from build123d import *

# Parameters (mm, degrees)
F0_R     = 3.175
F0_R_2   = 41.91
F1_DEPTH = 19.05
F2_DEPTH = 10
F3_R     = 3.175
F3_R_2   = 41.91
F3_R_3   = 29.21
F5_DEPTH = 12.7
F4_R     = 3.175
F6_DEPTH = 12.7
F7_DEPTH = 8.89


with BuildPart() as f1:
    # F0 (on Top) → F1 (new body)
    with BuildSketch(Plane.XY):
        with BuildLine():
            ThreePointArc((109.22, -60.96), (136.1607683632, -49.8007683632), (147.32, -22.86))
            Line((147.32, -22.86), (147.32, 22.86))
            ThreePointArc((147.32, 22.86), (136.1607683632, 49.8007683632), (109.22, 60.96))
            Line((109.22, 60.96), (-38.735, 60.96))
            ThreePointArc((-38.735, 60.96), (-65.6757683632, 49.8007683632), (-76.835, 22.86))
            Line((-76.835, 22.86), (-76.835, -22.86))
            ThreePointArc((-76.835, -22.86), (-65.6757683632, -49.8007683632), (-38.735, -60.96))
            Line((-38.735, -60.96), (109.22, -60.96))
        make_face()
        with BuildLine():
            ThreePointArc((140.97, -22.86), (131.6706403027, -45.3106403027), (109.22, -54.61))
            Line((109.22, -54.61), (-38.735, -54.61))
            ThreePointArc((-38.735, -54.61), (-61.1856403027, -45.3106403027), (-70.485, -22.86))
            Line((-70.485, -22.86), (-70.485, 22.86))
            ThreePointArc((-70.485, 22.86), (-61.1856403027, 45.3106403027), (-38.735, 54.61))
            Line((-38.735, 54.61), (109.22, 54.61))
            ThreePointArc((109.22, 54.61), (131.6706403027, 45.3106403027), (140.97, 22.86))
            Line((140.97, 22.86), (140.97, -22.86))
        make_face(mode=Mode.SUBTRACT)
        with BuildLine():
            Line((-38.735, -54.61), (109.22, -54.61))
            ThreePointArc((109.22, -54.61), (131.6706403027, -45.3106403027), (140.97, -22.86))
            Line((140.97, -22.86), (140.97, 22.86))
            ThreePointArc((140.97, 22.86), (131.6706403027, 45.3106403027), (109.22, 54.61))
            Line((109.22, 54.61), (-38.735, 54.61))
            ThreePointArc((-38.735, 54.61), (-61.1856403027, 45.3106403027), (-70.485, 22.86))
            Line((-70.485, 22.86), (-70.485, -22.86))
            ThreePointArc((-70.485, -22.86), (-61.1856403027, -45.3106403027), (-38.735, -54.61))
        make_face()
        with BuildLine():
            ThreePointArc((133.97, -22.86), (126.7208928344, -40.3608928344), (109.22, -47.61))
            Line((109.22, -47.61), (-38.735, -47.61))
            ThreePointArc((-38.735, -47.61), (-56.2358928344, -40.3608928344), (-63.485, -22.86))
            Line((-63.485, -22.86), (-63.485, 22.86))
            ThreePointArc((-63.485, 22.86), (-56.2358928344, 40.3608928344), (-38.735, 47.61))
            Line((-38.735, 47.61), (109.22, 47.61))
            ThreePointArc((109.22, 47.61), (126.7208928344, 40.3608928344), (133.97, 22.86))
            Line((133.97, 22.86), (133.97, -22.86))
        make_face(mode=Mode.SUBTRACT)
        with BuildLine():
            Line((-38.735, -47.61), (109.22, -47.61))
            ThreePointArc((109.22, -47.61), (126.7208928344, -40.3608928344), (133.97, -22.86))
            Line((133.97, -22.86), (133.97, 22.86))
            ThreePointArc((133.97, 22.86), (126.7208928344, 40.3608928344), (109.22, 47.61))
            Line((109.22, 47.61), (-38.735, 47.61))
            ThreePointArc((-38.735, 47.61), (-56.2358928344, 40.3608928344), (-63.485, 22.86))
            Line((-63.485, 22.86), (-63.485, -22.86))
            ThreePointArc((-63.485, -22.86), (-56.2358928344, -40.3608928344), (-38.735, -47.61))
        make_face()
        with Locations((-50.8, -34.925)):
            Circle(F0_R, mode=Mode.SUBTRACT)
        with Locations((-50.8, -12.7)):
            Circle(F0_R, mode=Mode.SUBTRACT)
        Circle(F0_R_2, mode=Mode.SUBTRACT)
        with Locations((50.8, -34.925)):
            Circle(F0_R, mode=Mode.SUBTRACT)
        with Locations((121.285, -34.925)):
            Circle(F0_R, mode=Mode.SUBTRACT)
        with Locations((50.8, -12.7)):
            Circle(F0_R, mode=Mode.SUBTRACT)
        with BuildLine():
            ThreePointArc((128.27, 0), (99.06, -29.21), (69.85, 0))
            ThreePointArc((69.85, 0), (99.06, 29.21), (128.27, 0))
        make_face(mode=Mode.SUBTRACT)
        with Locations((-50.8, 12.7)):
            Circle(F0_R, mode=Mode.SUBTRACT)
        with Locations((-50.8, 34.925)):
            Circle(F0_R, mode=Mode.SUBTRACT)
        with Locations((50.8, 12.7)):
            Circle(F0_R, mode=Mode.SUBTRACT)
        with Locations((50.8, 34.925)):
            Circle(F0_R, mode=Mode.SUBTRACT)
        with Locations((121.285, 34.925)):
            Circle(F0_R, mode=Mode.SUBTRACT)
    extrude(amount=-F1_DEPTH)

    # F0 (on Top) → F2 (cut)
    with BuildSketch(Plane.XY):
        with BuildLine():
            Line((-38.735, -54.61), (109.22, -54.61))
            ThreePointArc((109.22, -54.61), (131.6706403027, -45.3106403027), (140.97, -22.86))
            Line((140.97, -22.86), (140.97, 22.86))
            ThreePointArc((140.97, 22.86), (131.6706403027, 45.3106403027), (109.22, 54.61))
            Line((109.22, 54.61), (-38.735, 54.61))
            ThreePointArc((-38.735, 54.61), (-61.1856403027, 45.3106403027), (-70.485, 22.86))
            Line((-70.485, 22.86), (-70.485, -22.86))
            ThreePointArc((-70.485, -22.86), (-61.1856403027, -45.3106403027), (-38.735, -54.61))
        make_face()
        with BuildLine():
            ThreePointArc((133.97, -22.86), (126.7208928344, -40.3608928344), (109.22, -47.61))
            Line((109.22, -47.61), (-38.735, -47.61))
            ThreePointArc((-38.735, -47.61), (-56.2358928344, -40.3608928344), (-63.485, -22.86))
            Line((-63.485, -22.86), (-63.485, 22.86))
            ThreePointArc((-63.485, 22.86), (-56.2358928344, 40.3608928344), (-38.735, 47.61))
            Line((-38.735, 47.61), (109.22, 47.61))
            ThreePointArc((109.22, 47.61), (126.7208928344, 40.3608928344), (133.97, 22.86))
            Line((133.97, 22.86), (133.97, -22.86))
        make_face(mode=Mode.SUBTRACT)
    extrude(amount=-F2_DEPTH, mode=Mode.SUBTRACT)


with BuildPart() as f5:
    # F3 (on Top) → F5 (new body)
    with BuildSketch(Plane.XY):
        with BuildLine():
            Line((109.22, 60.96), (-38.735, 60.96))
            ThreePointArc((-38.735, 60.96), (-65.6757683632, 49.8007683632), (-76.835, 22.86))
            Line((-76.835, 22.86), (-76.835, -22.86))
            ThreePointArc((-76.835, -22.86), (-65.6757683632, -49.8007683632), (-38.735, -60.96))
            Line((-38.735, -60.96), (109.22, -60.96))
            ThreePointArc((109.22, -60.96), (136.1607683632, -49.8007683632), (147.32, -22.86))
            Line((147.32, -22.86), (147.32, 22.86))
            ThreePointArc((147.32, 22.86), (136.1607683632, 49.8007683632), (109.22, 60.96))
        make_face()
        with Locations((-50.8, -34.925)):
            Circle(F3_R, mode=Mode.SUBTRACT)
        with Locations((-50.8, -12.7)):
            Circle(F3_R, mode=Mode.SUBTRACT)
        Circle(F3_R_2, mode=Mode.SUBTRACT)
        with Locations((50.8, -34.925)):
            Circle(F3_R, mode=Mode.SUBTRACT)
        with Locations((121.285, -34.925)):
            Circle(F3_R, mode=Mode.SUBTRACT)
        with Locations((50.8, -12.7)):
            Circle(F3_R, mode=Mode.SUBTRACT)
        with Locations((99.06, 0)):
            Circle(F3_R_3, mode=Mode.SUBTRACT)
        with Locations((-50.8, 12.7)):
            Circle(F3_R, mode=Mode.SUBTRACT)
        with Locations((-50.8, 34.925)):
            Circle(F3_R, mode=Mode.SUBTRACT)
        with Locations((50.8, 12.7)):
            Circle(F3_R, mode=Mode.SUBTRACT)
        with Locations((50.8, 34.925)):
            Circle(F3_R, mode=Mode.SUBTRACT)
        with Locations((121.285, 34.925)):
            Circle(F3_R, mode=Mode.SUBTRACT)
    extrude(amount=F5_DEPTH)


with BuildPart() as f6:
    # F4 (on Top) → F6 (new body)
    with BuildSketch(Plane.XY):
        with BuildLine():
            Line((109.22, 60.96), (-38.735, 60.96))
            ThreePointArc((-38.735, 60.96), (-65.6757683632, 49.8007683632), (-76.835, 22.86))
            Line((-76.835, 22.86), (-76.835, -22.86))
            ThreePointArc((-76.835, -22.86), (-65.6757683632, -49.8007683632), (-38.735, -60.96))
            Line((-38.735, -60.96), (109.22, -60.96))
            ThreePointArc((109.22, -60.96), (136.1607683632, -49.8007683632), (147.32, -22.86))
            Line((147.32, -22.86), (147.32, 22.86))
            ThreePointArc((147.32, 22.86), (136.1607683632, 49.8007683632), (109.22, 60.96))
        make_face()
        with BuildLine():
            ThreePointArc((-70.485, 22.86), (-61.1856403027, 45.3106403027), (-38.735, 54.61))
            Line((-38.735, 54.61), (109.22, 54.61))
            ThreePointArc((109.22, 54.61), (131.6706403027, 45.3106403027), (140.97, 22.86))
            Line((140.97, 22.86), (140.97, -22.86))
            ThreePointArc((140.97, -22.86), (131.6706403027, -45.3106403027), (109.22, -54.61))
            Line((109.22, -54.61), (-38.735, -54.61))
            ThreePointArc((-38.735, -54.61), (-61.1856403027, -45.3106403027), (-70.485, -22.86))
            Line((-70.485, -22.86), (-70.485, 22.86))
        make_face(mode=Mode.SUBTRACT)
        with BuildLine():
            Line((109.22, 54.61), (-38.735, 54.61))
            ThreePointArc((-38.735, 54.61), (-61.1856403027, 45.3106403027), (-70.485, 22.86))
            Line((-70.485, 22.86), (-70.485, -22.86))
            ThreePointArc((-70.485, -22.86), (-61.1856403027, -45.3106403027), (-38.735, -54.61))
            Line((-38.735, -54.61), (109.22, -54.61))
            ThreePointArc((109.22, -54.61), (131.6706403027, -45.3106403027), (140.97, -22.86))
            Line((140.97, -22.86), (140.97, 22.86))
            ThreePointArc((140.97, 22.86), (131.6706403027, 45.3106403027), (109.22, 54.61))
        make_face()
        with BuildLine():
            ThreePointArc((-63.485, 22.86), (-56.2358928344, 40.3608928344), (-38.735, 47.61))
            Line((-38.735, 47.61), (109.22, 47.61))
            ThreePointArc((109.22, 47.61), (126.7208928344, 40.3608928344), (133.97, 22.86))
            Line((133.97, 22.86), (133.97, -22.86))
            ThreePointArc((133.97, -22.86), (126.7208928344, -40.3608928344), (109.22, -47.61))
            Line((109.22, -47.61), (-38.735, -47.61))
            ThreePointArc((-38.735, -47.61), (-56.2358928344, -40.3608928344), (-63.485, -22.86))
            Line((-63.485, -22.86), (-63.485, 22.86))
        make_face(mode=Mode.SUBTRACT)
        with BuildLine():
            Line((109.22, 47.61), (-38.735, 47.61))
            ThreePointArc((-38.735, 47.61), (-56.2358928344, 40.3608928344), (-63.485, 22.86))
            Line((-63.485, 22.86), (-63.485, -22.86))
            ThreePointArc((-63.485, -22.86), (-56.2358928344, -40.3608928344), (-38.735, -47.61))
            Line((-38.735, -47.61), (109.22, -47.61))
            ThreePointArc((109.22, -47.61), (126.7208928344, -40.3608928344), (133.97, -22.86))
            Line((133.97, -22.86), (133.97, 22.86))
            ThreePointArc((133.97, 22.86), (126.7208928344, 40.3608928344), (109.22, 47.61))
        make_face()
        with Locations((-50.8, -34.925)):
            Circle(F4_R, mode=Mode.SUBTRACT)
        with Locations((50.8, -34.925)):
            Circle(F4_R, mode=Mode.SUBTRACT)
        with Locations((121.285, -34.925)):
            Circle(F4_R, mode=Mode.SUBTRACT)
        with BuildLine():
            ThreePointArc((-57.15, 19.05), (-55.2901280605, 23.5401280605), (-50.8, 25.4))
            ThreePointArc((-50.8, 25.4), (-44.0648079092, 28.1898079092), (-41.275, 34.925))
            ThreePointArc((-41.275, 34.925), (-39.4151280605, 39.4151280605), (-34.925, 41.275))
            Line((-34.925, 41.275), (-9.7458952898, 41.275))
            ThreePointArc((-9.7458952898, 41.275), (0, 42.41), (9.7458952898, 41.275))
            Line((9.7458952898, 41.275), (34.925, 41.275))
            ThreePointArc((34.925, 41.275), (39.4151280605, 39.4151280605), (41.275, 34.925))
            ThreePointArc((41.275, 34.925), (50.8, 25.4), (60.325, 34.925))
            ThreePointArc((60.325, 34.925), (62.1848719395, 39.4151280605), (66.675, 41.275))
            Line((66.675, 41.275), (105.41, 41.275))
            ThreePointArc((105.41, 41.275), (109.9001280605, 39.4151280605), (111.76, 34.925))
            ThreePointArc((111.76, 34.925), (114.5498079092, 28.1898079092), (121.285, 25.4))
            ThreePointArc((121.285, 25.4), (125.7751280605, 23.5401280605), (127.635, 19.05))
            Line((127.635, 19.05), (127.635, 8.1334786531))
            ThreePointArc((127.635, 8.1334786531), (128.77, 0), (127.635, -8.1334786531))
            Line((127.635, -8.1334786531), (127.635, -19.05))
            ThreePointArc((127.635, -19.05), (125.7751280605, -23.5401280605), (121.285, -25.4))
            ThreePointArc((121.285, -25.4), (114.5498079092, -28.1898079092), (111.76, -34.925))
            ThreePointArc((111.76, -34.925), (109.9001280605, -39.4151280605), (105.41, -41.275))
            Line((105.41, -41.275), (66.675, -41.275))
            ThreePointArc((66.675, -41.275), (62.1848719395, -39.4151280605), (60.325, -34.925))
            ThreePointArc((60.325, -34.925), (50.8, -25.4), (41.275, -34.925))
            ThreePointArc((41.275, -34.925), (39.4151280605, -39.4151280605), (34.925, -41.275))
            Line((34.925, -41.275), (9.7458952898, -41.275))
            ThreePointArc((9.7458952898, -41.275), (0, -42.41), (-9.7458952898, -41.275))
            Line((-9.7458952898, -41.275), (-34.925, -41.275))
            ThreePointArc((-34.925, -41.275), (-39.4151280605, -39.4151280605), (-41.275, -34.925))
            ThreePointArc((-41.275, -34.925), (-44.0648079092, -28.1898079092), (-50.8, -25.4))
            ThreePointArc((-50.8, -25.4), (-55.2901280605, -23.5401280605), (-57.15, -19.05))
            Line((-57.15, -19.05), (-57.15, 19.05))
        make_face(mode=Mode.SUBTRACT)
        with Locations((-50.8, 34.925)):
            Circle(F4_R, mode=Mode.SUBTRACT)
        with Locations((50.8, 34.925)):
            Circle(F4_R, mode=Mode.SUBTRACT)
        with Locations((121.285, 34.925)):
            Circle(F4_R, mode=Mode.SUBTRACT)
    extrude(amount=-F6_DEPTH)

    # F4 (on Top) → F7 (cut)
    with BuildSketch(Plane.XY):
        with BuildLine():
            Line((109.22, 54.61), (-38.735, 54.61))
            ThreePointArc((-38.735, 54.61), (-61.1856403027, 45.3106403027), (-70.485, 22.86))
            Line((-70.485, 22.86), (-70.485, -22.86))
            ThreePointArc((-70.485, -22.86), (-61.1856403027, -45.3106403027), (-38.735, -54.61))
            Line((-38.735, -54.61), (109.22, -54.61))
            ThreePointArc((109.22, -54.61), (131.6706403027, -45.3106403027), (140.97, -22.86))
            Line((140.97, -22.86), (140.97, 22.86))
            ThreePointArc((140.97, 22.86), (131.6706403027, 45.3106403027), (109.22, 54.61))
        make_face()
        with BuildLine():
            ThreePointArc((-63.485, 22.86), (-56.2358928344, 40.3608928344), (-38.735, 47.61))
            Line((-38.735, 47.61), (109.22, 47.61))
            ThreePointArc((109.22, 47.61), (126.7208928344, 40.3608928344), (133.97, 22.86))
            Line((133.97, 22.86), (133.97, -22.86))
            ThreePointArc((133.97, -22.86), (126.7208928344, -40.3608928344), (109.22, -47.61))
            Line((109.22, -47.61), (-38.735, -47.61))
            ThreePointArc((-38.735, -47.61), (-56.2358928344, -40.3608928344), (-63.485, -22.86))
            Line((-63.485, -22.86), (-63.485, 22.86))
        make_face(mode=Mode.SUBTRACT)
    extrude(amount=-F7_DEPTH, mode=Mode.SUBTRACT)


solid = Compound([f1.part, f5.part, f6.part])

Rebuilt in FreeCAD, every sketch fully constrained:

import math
import FreeCAD as App
import Part
import Sketcher
from FreeCAD import Vector
Q = App.Units.Quantity

doc = App.newDocument("Part")
body = doc.addObject("PartDesign::Body", "Body")

# Sketch on XY plane
sketch1 = body.newObject("Sketcher::SketchObject", "Sketch")
sketch1.AttachmentSupport = (doc.getObject("XY_Plane"), [""])
sketch1.MapMode = "FlatFace"
sketch1.addGeometry(Part.ArcOfCircle(Part.Circle(Vector(109.22, -22.86, 0), Vector(0, 0, 1), 38.1), math.radians(-90), math.radians(0)), False)
sketch1.addGeometry(Part.LineSegment(Vector(147.32, -22.86, 0), Vector(147.32, 22.86, 0)), False)
sketch1.addGeometry(Part.ArcOfCircle(Part.Circle(Vector(109.22, 22.86, 0), Vector(0, 0, 1), 38.1), math.radians(0), math.radians(90)), False)
sketch1.addGeometry(Part.LineSegment(Vector(109.22, 60.96, 0), Vector(-38.735, 60.96, 0)), False)
sketch1.addGeometry(Part.ArcOfCircle(Part.Circle(Vector(-38.735, 22.86, 0), Vector(0, 0, 1), 38.1), math.radians(90), math.radians(180)), False)
sketch1.addGeometry(Part.LineSegment(Vector(-76.835, 22.86, 0), Vector(-76.835, -22.86, 0)), False)
sketch1.addGeometry(Part.ArcOfCircle(Part.Circle(Vector(-38.735, -22.86, 0), Vector(0, 0, 1), 38.1), math.radians(180), math.radians(270)), False)
sketch1.addGeometry(Part.LineSegment(Vector(-38.735, -60.96, 0), Vector(109.22, -60.96, 0)), False)
sketch1.addGeometry(Part.Circle(Vector(-50.8, -34.925, 0), Vector(0, 0, 1), 3.175), False)
sketch1.addGeometry(Part.Circle(Vector(-50.8, -12.7, 0), Vector(0, 0, 1), 3.175), False)
sketch1.addGeometry(Part.Circle(Vector(50.8, -34.925, 0), Vector(0, 0, 1), 3.175), False)
sketch1.addGeometry(Part.Circle(Vector(121.285, -34.925, 0), Vector(0, 0, 1), 3.175), False)
sketch1.addGeometry(Part.Circle(Vector(50.8, -12.7, 0), Vector(0, 0, 1), 3.175), False)
sketch1.addGeometry(Part.Circle(Vector(99.06, 0, 0), Vector(0, 0, 1), 29.21), False)
sketch1.addGeometry(Part.Circle(Vector(-50.8, 12.7, 0), Vector(0, 0, 1), 3.175), False)
sketch1.addGeometry(Part.Circle(Vector(0, 0, 0), Vector(0, 0, 1), 41.91), False)
sketch1.addGeometry(Part.Circle(Vector(-50.8, 34.925, 0), Vector(0, 0, 1), 3.175), False)
sketch1.addGeometry(Part.Circle(Vector(50.8, 12.7, 0), Vector(0, 0, 1), 3.175), False)
sketch1.addGeometry(Part.Circle(Vector(50.8, 34.925, 0), Vector(0, 0, 1), 3.175), False)
sketch1.addGeometry(Part.Circle(Vector(121.285, 34.925, 0), Vector(0, 0, 1), 3.175), False)
sketch1.addConstraint(Sketcher.Constraint("Tangent", 0, 2, 1, 1))
sketch1.addConstraint(Sketcher.Constraint("Tangent", 1, 2, 2, 1))
sketch1.addConstraint(Sketcher.Constraint("Tangent", 2, 2, 3, 1))
sketch1.addConstraint(Sketcher.Constraint("Tangent", 3, 2, 4, 1))
sketch1.addConstraint(Sketcher.Constraint("Tangent", 4, 2, 5, 1))
sketch1.addConstraint(Sketcher.Constraint("Tangent", 5, 2, 6, 1))
sketch1.addConstraint(Sketcher.Constraint("Tangent", 6, 2, 7, 1))
sketch1.addConstraint(Sketcher.Constraint("Tangent", 7, 2, 0, 1))
sketch1.addConstraint(Sketcher.Constraint("Vertical", 1))
sketch1.addConstraint(Sketcher.Constraint("Horizontal", 3))
sketch1.addConstraint(Sketcher.Constraint("Vertical", 5))
sketch1.addConstraint(Sketcher.Constraint("Horizontal", 7))
sketch1.addConstraint(Sketcher.Constraint("Coincident", 15, 3, -1, 1))
sketch1.addConstraint(Sketcher.Constraint("Equal", 0, 2))
sketch1.addConstraint(Sketcher.Constraint("Equal", 2, 4))
sketch1.addConstraint(Sketcher.Constraint("Equal", 4, 6))
sketch1.addConstraint(Sketcher.Constraint("Equal", 8, 9))
sketch1.addConstraint(Sketcher.Constraint("Equal", 9, 10))
sketch1.addConstraint(Sketcher.Constraint("Equal", 10, 11))
sketch1.addConstraint(Sketcher.Constraint("Equal", 11, 12))
sketch1.addConstraint(Sketcher.Constraint("Equal", 12, 14))
sketch1.addConstraint(Sketcher.Constraint("Equal", 14, 16))
sketch1.addConstraint(Sketcher.Constraint("Equal", 16, 17))
sketch1.addConstraint(Sketcher.Constraint("Equal", 17, 18))
sketch1.addConstraint(Sketcher.Constraint("Equal", 18, 19))
sketch1.addConstraint(Sketcher.Constraint("Symmetric", 12, 3, 14, 3, -1, 1))
sketch1.addConstraint(Sketcher.Constraint("Symmetric", 10, 3, 16, 3, -1, 1))
sketch1.addConstraint(Sketcher.Constraint("Symmetric", 9, 3, 17, 3, -1, 1))
sketch1.addConstraint(Sketcher.Constraint("Symmetric", 8, 3, 18, 3, -1, 1))
sketch1.addConstraint(Sketcher.Constraint("Symmetric", 8, 3, 10, 3, -2))
sketch1.addConstraint(Sketcher.Constraint("Symmetric", 9, 3, 12, 3, -2))
sketch1.addConstraint(Sketcher.Constraint("Symmetric", 11, 3, 19, 3, -1))
sketch1.addConstraint(Sketcher.Constraint("PointOnObject", 13, 3, -1))
sketch1.addConstraint(Sketcher.Constraint("Horizontal", 10, 3, 11, 3))
sketch1.addConstraint(Sketcher.Constraint("Vertical", 8, 3, 9, 3))
sketch1.addConstraint(Sketcher.Constraint("Diameter", 13, Q("2.3 in")))
sketch1.addConstraint(Sketcher.Constraint("Diameter", 15, Q("3.3 in")))
sketch1.addConstraint(Sketcher.Constraint("Radius", 0, Q("1.5 in")))
sketch1.addConstraint(Sketcher.Constraint("Diameter", 8, Q("0.25 in")))
sketch1.addConstraint(Sketcher.Constraint("DistanceY", 1, 1, 1, 2, Q("1.8 in")))
sketch1.addConstraint(Sketcher.Constraint("DistanceX", 8, 3, -1, 1, Q("2 in")))
sketch1.addConstraint(Sketcher.Constraint("DistanceY", 9, 3, 14, 3, Q("1 in")))
sketch1.addConstraint(Sketcher.Constraint("DistanceX", -1, 1, 0, 3, Q("4.3 in")))
sketch1.addConstraint(Sketcher.Constraint("DistanceY", 0, 3, -1, 1, Q("0.9 in")))
sketch1.addConstraint(Sketcher.Constraint("DistanceX", -1, 1, 13, 3, Q("3.9 in")))
sketch1.addConstraint(Sketcher.Constraint("DistanceX", 6, 3, 11, 3, Q("6.3 in")))
sketch1.addConstraint(Sketcher.Constraint("DistanceX", 3, 2, 3, 1, Q("5.825 in")))
sketch1.addConstraint(Sketcher.Constraint("DistanceY", 11, 3, 19, 3, Q("2.75 in")))
pad1 = body.newObject("PartDesign::Pad", "Pad")
pad1.Profile = sketch1
pad1.Length = Q("0.75 in")
pad1.Reversed = True

# Sketch on XY plane
sketch2 = body.newObject("Sketcher::SketchObject", "Sketch001")
sketch2.AttachmentSupport = (doc.getObject("XY_Plane"), [""])
sketch2.MapMode = "FlatFace"
sketch2.addGeometry(Part.LineSegment(Vector(-38.735, -54.61, 0), Vector(109.22, -54.61, 0)), False)
sketch2.addGeometry(Part.ArcOfCircle(Part.Circle(Vector(109.22, -22.86, 0), Vector(0, 0, 1), 31.75), math.radians(-90), math.radians(0)), False)
sketch2.addGeometry(Part.LineSegment(Vector(140.97, -22.86, 0), Vector(140.97, 22.86, 0)), False)
sketch2.addGeometry(Part.ArcOfCircle(Part.Circle(Vector(109.22, 22.86, 0), Vector(0, 0, 1), 31.75), math.radians(0), math.radians(90)), False)
sketch2.addGeometry(Part.LineSegment(Vector(109.22, 54.61, 0), Vector(-38.735, 54.61, 0)), False)
sketch2.addGeometry(Part.ArcOfCircle(Part.Circle(Vector(-38.735, 22.86, 0), Vector(0, 0, 1), 31.75), math.radians(90), math.radians(180)), False)
sketch2.addGeometry(Part.LineSegment(Vector(-70.485, 22.86, 0), Vector(-70.485, -22.86, 0)), False)
sketch2.addGeometry(Part.ArcOfCircle(Part.Circle(Vector(-38.735, -22.86, 0), Vector(0, 0, 1), 31.75), math.radians(180), math.radians(270)), False)
sketch2.addGeometry(Part.LineSegment(Vector(133.97, 22.86, 0), Vector(133.97, -22.86, 0)), False)
sketch2.addGeometry(Part.ArcOfCircle(Part.Circle(Vector(109.22, -22.86, 0), Vector(0, 0, 1), 24.75), math.radians(-90), math.radians(0)), False)
sketch2.addGeometry(Part.LineSegment(Vector(109.22, -47.61, 0), Vector(-38.735, -47.61, 0)), False)
sketch2.addGeometry(Part.ArcOfCircle(Part.Circle(Vector(-38.735, -22.86, 0), Vector(0, 0, 1), 24.75), math.radians(180), math.radians(270)), False)
sketch2.addGeometry(Part.LineSegment(Vector(-63.485, -22.86, 0), Vector(-63.485, 22.86, 0)), False)
sketch2.addGeometry(Part.ArcOfCircle(Part.Circle(Vector(-38.735, 22.86, 0), Vector(0, 0, 1), 24.75), math.radians(90), math.radians(180)), False)
sketch2.addGeometry(Part.LineSegment(Vector(-38.735, 47.61, 0), Vector(109.22, 47.61, 0)), False)
sketch2.addGeometry(Part.ArcOfCircle(Part.Circle(Vector(109.22, 22.86, 0), Vector(0, 0, 1), 24.75), math.radians(0), math.radians(90)), False)
sketch2.addConstraint(Sketcher.Constraint("Tangent", 0, 2, 1, 1))
sketch2.addConstraint(Sketcher.Constraint("Tangent", 1, 2, 2, 1))
sketch2.addConstraint(Sketcher.Constraint("Tangent", 2, 2, 3, 1))
sketch2.addConstraint(Sketcher.Constraint("Tangent", 3, 2, 4, 1))
sketch2.addConstraint(Sketcher.Constraint("Tangent", 4, 2, 5, 1))
sketch2.addConstraint(Sketcher.Constraint("Tangent", 5, 2, 6, 1))
sketch2.addConstraint(Sketcher.Constraint("Tangent", 6, 2, 7, 1))
sketch2.addConstraint(Sketcher.Constraint("Tangent", 7, 2, 0, 1))
sketch2.addConstraint(Sketcher.Constraint("Tangent", 8, 2, 9, 2))
sketch2.addConstraint(Sketcher.Constraint("Tangent", 9, 1, 10, 1))
sketch2.addConstraint(Sketcher.Constraint("Tangent", 10, 2, 11, 2))
sketch2.addConstraint(Sketcher.Constraint("Tangent", 11, 1, 12, 1))
sketch2.addConstraint(Sketcher.Constraint("Tangent", 12, 2, 13, 2))
sketch2.addConstraint(Sketcher.Constraint("Tangent", 13, 1, 14, 1))
sketch2.addConstraint(Sketcher.Constraint("Tangent", 14, 2, 15, 2))
sketch2.addConstraint(Sketcher.Constraint("Tangent", 15, 1, 8, 1))
sketch2.addConstraint(Sketcher.Constraint("Horizontal", 0))
sketch2.addConstraint(Sketcher.Constraint("Vertical", 2))
sketch2.addConstraint(Sketcher.Constraint("Horizontal", 4))
sketch2.addConstraint(Sketcher.Constraint("Vertical", 6))
sketch2.addConstraint(Sketcher.Constraint("Vertical", 8))
sketch2.addConstraint(Sketcher.Constraint("Horizontal", 10))
sketch2.addConstraint(Sketcher.Constraint("Vertical", 12))
sketch2.addConstraint(Sketcher.Constraint("Horizontal", 14))
sketch2.addConstraint(Sketcher.Constraint("Coincident", 9, 3, 1, 3))
sketch2.addConstraint(Sketcher.Constraint("Coincident", 11, 3, 7, 3))
sketch2.addConstraint(Sketcher.Constraint("Coincident", 13, 3, 5, 3))
sketch2.addConstraint(Sketcher.Constraint("Equal", 1, 3))
sketch2.addConstraint(Sketcher.Constraint("Equal", 3, 5))
sketch2.addConstraint(Sketcher.Constraint("Equal", 5, 7))
sketch2.addConstraint(Sketcher.Constraint("Equal", 13, 15))
sketch2.addConstraint(Sketcher.Constraint("Radius", 1, Q("1.25 in")))
sketch2.addConstraint(Sketcher.Constraint("DistanceY", 2, 1, 2, 2, Q("1.8 in")))
sketch2.addConstraint(Sketcher.Constraint("DistanceX", -1, 1, 1, 3, Q("4.3 in")))
sketch2.addConstraint(Sketcher.Constraint("DistanceY", 1, 3, -1, 1, Q("0.9 in")))
sketch2.addConstraint(Sketcher.Constraint("DistanceX", 0, 1, 0, 2, Q("5.825 in")))
sketch2.addConstraint(Sketcher.Constraint("Radius", 9, 24.75))
pocket1 = body.newObject("PartDesign::Pocket", "Pocket")
pocket1.Profile = sketch2
pocket1.Length = 10
body2 = doc.addObject("PartDesign::Body", "Body001")

# Sketch on XY plane
sketch3 = body2.newObject("Sketcher::SketchObject", "Sketch002")
sketch3.AttachmentSupport = (doc.getObject("XY_Plane001"), [""])
sketch3.MapMode = "FlatFace"
sketch3.addGeometry(Part.LineSegment(Vector(109.22, 60.96, 0), Vector(-38.735, 60.96, 0)), False)
sketch3.addGeometry(Part.ArcOfCircle(Part.Circle(Vector(-38.735, 22.86, 0), Vector(0, 0, 1), 38.1), math.radians(90), math.radians(180)), False)
sketch3.addGeometry(Part.LineSegment(Vector(-76.835, 22.86, 0), Vector(-76.835, -22.86, 0)), False)
sketch3.addGeometry(Part.ArcOfCircle(Part.Circle(Vector(-38.735, -22.86, 0), Vector(0, 0, 1), 38.1), math.radians(180), math.radians(270)), False)
sketch3.addGeometry(Part.LineSegment(Vector(-38.735, -60.96, 0), Vector(109.22, -60.96, 0)), False)
sketch3.addGeometry(Part.ArcOfCircle(Part.Circle(Vector(109.22, -22.86, 0), Vector(0, 0, 1), 38.1), math.radians(-90), math.radians(0)), False)
sketch3.addGeometry(Part.LineSegment(Vector(147.32, -22.86, 0), Vector(147.32, 22.86, 0)), False)
sketch3.addGeometry(Part.ArcOfCircle(Part.Circle(Vector(109.22, 22.86, 0), Vector(0, 0, 1), 38.1), math.radians(0), math.radians(90)), False)
sketch3.addGeometry(Part.Circle(Vector(-50.8, -34.925, 0), Vector(0, 0, 1), 3.175), False)
sketch3.addGeometry(Part.Circle(Vector(-50.8, -12.7, 0), Vector(0, 0, 1), 3.175), False)
sketch3.addGeometry(Part.Circle(Vector(50.8, -34.925, 0), Vector(0, 0, 1), 3.175), False)
sketch3.addGeometry(Part.Circle(Vector(121.285, -34.925, 0), Vector(0, 0, 1), 3.175), False)
sketch3.addGeometry(Part.Circle(Vector(50.8, -12.7, 0), Vector(0, 0, 1), 3.175), False)
sketch3.addGeometry(Part.Circle(Vector(-50.8, 12.7, 0), Vector(0, 0, 1), 3.175), False)
sketch3.addGeometry(Part.Circle(Vector(0, 0, 0), Vector(0, 0, 1), 41.91), False)
sketch3.addGeometry(Part.Circle(Vector(-50.8, 34.925, 0), Vector(0, 0, 1), 3.175), False)
sketch3.addGeometry(Part.Circle(Vector(50.8, 12.7, 0), Vector(0, 0, 1), 3.175), False)
sketch3.addGeometry(Part.Circle(Vector(99.06, 0, 0), Vector(0, 0, 1), 29.21), False)
sketch3.addGeometry(Part.Circle(Vector(50.8, 34.925, 0), Vector(0, 0, 1), 3.175), False)
sketch3.addGeometry(Part.Circle(Vector(121.285, 34.925, 0), Vector(0, 0, 1), 3.175), False)
sketch3.addConstraint(Sketcher.Constraint("Tangent", 0, 2, 1, 1))
sketch3.addConstraint(Sketcher.Constraint("Tangent", 1, 2, 2, 1))
sketch3.addConstraint(Sketcher.Constraint("Tangent", 2, 2, 3, 1))
sketch3.addConstraint(Sketcher.Constraint("Tangent", 3, 2, 4, 1))
sketch3.addConstraint(Sketcher.Constraint("Tangent", 4, 2, 5, 1))
sketch3.addConstraint(Sketcher.Constraint("Tangent", 5, 2, 6, 1))
sketch3.addConstraint(Sketcher.Constraint("Tangent", 6, 2, 7, 1))
sketch3.addConstraint(Sketcher.Constraint("Tangent", 7, 2, 0, 1))
sketch3.addConstraint(Sketcher.Constraint("Horizontal", 0))
sketch3.addConstraint(Sketcher.Constraint("Vertical", 2))
sketch3.addConstraint(Sketcher.Constraint("Horizontal", 4))
sketch3.addConstraint(Sketcher.Constraint("Vertical", 6))
sketch3.addConstraint(Sketcher.Constraint("Coincident", 14, 3, -1, 1))
sketch3.addConstraint(Sketcher.Constraint("Equal", 1, 3))
sketch3.addConstraint(Sketcher.Constraint("Equal", 3, 5))
sketch3.addConstraint(Sketcher.Constraint("Equal", 5, 7))
sketch3.addConstraint(Sketcher.Constraint("Equal", 8, 9))
sketch3.addConstraint(Sketcher.Constraint("Equal", 9, 10))
sketch3.addConstraint(Sketcher.Constraint("Equal", 10, 11))
sketch3.addConstraint(Sketcher.Constraint("Equal", 11, 12))
sketch3.addConstraint(Sketcher.Constraint("Equal", 12, 13))
sketch3.addConstraint(Sketcher.Constraint("Equal", 13, 15))
sketch3.addConstraint(Sketcher.Constraint("Equal", 15, 16))
sketch3.addConstraint(Sketcher.Constraint("Equal", 16, 18))
sketch3.addConstraint(Sketcher.Constraint("Equal", 18, 19))
sketch3.addConstraint(Sketcher.Constraint("Symmetric", 12, 3, 13, 3, -1, 1))
sketch3.addConstraint(Sketcher.Constraint("Symmetric", 10, 3, 15, 3, -1, 1))
sketch3.addConstraint(Sketcher.Constraint("Symmetric", 9, 3, 16, 3, -1, 1))
sketch3.addConstraint(Sketcher.Constraint("Symmetric", 8, 3, 18, 3, -1, 1))
sketch3.addConstraint(Sketcher.Constraint("Symmetric", 8, 3, 10, 3, -2))
sketch3.addConstraint(Sketcher.Constraint("Symmetric", 9, 3, 12, 3, -2))
sketch3.addConstraint(Sketcher.Constraint("Symmetric", 11, 3, 19, 3, -1))
sketch3.addConstraint(Sketcher.Constraint("PointOnObject", 17, 3, -1))
sketch3.addConstraint(Sketcher.Constraint("Horizontal", 10, 3, 11, 3))
sketch3.addConstraint(Sketcher.Constraint("Vertical", 8, 3, 9, 3))
sketch3.addConstraint(Sketcher.Constraint("Diameter", 14, Q("3.3 in")))
sketch3.addConstraint(Sketcher.Constraint("Diameter", 17, Q("2.3 in")))
sketch3.addConstraint(Sketcher.Constraint("Radius", 1, Q("1.5 in")))
sketch3.addConstraint(Sketcher.Constraint("Diameter", 8, Q("0.25 in")))
sketch3.addConstraint(Sketcher.Constraint("DistanceY", 2, 2, 2, 1, Q("1.8 in")))
sketch3.addConstraint(Sketcher.Constraint("DistanceX", 8, 3, -1, 1, Q("2 in")))
sketch3.addConstraint(Sketcher.Constraint("DistanceY", 9, 3, 13, 3, Q("1 in")))
sketch3.addConstraint(Sketcher.Constraint("DistanceY", -1, 1, 1, 3, Q("0.9 in")))
sketch3.addConstraint(Sketcher.Constraint("DistanceX", -1, 1, 5, 3, Q("4.3 in")))
sketch3.addConstraint(Sketcher.Constraint("DistanceX", -1, 1, 17, 3, Q("3.9 in")))
sketch3.addConstraint(Sketcher.Constraint("DistanceX", 3, 3, 11, 3, Q("6.3 in")))
sketch3.addConstraint(Sketcher.Constraint("DistanceX", 0, 2, 0, 1, Q("5.825 in")))
sketch3.addConstraint(Sketcher.Constraint("DistanceY", 11, 3, 19, 3, Q("2.75 in")))
pad2 = body2.newObject("PartDesign::Pad", "Pad001")
pad2.Profile = sketch3
pad2.Length = Q("0.5 in")
body3 = doc.addObject("PartDesign::Body", "Body002")

# Sketch on XY plane
sketch4 = body3.newObject("Sketcher::SketchObject", "Sketch003")
sketch4.AttachmentSupport = (doc.getObject("XY_Plane002"), [""])
sketch4.MapMode = "FlatFace"
sketch4.addGeometry(Part.LineSegment(Vector(109.22, 60.96, 0), Vector(-38.735, 60.96, 0)), False)
sketch4.addGeometry(Part.ArcOfCircle(Part.Circle(Vector(-38.735, 22.86, 0), Vector(0, 0, 1), 38.1), math.radians(90), math.radians(180)), False)
sketch4.addGeometry(Part.LineSegment(Vector(-76.835, 22.86, 0), Vector(-76.835, -22.86, 0)), False)
sketch4.addGeometry(Part.ArcOfCircle(Part.Circle(Vector(-38.735, -22.86, 0), Vector(0, 0, 1), 38.1), math.radians(180), math.radians(270)), False)
sketch4.addGeometry(Part.LineSegment(Vector(-38.735, -60.96, 0), Vector(109.22, -60.96, 0)), False)
sketch4.addGeometry(Part.ArcOfCircle(Part.Circle(Vector(109.22, -22.86, 0), Vector(0, 0, 1), 38.1), math.radians(-90), math.radians(0)), False)
sketch4.addGeometry(Part.LineSegment(Vector(147.32, -22.86, 0), Vector(147.32, 22.86, 0)), False)
sketch4.addGeometry(Part.ArcOfCircle(Part.Circle(Vector(109.22, 22.86, 0), Vector(0, 0, 1), 38.1), math.radians(0), math.radians(90)), False)
sketch4.addGeometry(Part.Circle(Vector(-50.8, -34.925, 0), Vector(0, 0, 1), 3.175), False)
sketch4.addGeometry(Part.Circle(Vector(50.8, -34.925, 0), Vector(0, 0, 1), 3.175), False)
sketch4.addGeometry(Part.Circle(Vector(121.285, -34.925, 0), Vector(0, 0, 1), 3.175), False)
sketch4.addGeometry(Part.Circle(Vector(-50.8, 34.925, 0), Vector(0, 0, 1), 3.175), False)
sketch4.addGeometry(Part.LineSegment(Vector(-57.15, -19.05, 0), Vector(-57.15, 19.05, 0)), False)
sketch4.addGeometry(Part.ArcOfCircle(Part.Circle(Vector(-50.8, 19.05, 0), Vector(0, 0, 1), 6.35), math.radians(90), math.radians(180)), False)
sketch4.addGeometry(Part.ArcOfCircle(Part.Circle(Vector(-50.8, 34.925, 0), Vector(0, 0, 1), 9.525), math.radians(-90), math.radians(0)), False)
sketch4.addGeometry(Part.ArcOfCircle(Part.Circle(Vector(-34.925, 34.925, 0), Vector(0, 0, 1), 6.35), math.radians(90), math.radians(180)), False)
sketch4.addGeometry(Part.LineSegment(Vector(-34.925, 41.275, 0), Vector(-9.745895, 41.275, 0)), False)
sketch4.addGeometry(Part.ArcOfCircle(Part.Circle(Vector(0, 0, 0), Vector(0, 0, 1), 42.41), math.radians(76.714596), math.radians(103.285404)), False)
sketch4.addGeometry(Part.LineSegment(Vector(9.745895, 41.275, 0), Vector(34.925, 41.275, 0)), False)
sketch4.addGeometry(Part.ArcOfCircle(Part.Circle(Vector(34.925, 34.925, 0), Vector(0, 0, 1), 6.35), math.radians(0), math.radians(90)), False)
sketch4.addGeometry(Part.ArcOfCircle(Part.Circle(Vector(50.8, 34.925, 0), Vector(0, 0, 1), 9.525), math.radians(180), math.radians(360)), False)
sketch4.addGeometry(Part.ArcOfCircle(Part.Circle(Vector(66.675, 34.925, 0), Vector(0, 0, 1), 6.35), math.radians(90), math.radians(180)), False)
sketch4.addGeometry(Part.LineSegment(Vector(66.675, 41.275, 0), Vector(105.41, 41.275, 0)), False)
sketch4.addGeometry(Part.ArcOfCircle(Part.Circle(Vector(105.41, 34.925, 0), Vector(0, 0, 1), 6.35), math.radians(0), math.radians(90)), False)
sketch4.addGeometry(Part.ArcOfCircle(Part.Circle(Vector(121.285, 34.925, 0), Vector(0, 0, 1), 9.525), math.radians(180), math.radians(270)), False)
sketch4.addGeometry(Part.ArcOfCircle(Part.Circle(Vector(121.285, 19.05, 0), Vector(0, 0, 1), 6.35), math.radians(0), math.radians(90)), False)
sketch4.addGeometry(Part.LineSegment(Vector(127.635, 19.05, 0), Vector(127.635, 8.133479, 0)), False)
sketch4.addGeometry(Part.ArcOfCircle(Part.Circle(Vector(99.06, 0, 0), Vector(0, 0, 1), 29.71), math.radians(-15.88827), math.radians(15.88827)), False)
sketch4.addGeometry(Part.LineSegment(Vector(127.635, -8.133479, 0), Vector(127.635, -19.05, 0)), False)
sketch4.addGeometry(Part.ArcOfCircle(Part.Circle(Vector(121.285, -19.05, 0), Vector(0, 0, 1), 6.35), math.radians(-90), math.radians(0)), False)
sketch4.addGeometry(Part.ArcOfCircle(Part.Circle(Vector(121.285, -34.925, 0), Vector(0, 0, 1), 9.525), math.radians(90), math.radians(180)), False)
sketch4.addGeometry(Part.ArcOfCircle(Part.Circle(Vector(105.41, -34.925, 0), Vector(0, 0, 1), 6.35), math.radians(-90), math.radians(0)), False)
sketch4.addGeometry(Part.LineSegment(Vector(105.41, -41.275, 0), Vector(66.675, -41.275, 0)), False)
sketch4.addGeometry(Part.ArcOfCircle(Part.Circle(Vector(66.675, -34.925, 0), Vector(0, 0, 1), 6.35), math.radians(180), math.radians(270)), False)
sketch4.addGeometry(Part.ArcOfCircle(Part.Circle(Vector(50.8, -34.925, 0), Vector(0, 0, 1), 9.525), math.radians(0), math.radians(180)), False)
sketch4.addGeometry(Part.ArcOfCircle(Part.Circle(Vector(34.925, -34.925, 0), Vector(0, 0, 1), 6.35), math.radians(-90), math.radians(0)), False)
sketch4.addGeometry(Part.LineSegment(Vector(34.925, -41.275, 0), Vector(9.745895, -41.275, 0)), False)
sketch4.addGeometry(Part.ArcOfCircle(Part.Circle(Vector(0, 0, 0), Vector(0, 0, 1), 42.41), math.radians(-103.285404), math.radians(-76.714596)), False)
sketch4.addGeometry(Part.LineSegment(Vector(-9.745895, -41.275, 0), Vector(-34.925, -41.275, 0)), False)
sketch4.addGeometry(Part.ArcOfCircle(Part.Circle(Vector(-34.925, -34.925, 0), Vector(0, 0, 1), 6.35), math.radians(180), math.radians(270)), False)
sketch4.addGeometry(Part.ArcOfCircle(Part.Circle(Vector(-50.8, -34.925, 0), Vector(0, 0, 1), 9.525), math.radians(0), math.radians(90)), False)
sketch4.addGeometry(Part.ArcOfCircle(Part.Circle(Vector(-50.8, -19.05, 0), Vector(0, 0, 1), 6.35), math.radians(180), math.radians(270)), False)
sketch4.addGeometry(Part.Circle(Vector(50.8, 34.925, 0), Vector(0, 0, 1), 3.175), False)
sketch4.addGeometry(Part.Circle(Vector(121.285, 34.925, 0), Vector(0, 0, 1), 3.175), False)
sketch4.addConstraint(Sketcher.Constraint("Tangent", 0, 2, 1, 1))
sketch4.addConstraint(Sketcher.Constraint("Tangent", 1, 2, 2, 1))
sketch4.addConstraint(Sketcher.Constraint("Tangent", 2, 2, 3, 1))
sketch4.addConstraint(Sketcher.Constraint("Tangent", 3, 2, 4, 1))
sketch4.addConstraint(Sketcher.Constraint("Tangent", 4, 2, 5, 1))
sketch4.addConstraint(Sketcher.Constraint("Tangent", 5, 2, 6, 1))
sketch4.addConstraint(Sketcher.Constraint("Tangent", 6, 2, 7, 1))
sketch4.addConstraint(Sketcher.Constraint("Tangent", 7, 2, 0, 1))
sketch4.addConstraint(Sketcher.Constraint("Tangent", 12, 2, 13, 2))
sketch4.addConstraint(Sketcher.Constraint("Tangent", 13, 1, 14, 1))
sketch4.addConstraint(Sketcher.Constraint("Tangent", 14, 2, 15, 2))
sketch4.addConstraint(Sketcher.Constraint("Tangent", 15, 1, 16, 1))
sketch4.addConstraint(Sketcher.Constraint("Coincident", 16, 2, 17, 2))
sketch4.addConstraint(Sketcher.Constraint("Coincident", 17, 1, 18, 1))
sketch4.addConstraint(Sketcher.Constraint("Tangent", 18, 2, 19, 2))
sketch4.addConstraint(Sketcher.Constraint("Tangent", 19, 1, 20, 1))
sketch4.addConstraint(Sketcher.Constraint("Tangent", 20, 2, 21, 2))
sketch4.addConstraint(Sketcher.Constraint("Tangent", 21, 1, 22, 1))
sketch4.addConstraint(Sketcher.Constraint("Tangent", 22, 2, 23, 2))
sketch4.addConstraint(Sketcher.Constraint("Tangent", 23, 1, 24, 1))
sketch4.addConstraint(Sketcher.Constraint("Tangent", 24, 2, 25, 2))
sketch4.addConstraint(Sketcher.Constraint("Tangent", 25, 1, 26, 1))
sketch4.addConstraint(Sketcher.Constraint("Coincident", 26, 2, 27, 2))
sketch4.addConstraint(Sketcher.Constraint("Coincident", 27, 1, 28, 1))
sketch4.addConstraint(Sketcher.Constraint("Tangent", 28, 2, 29, 2))
sketch4.addConstraint(Sketcher.Constraint("Tangent", 29, 1, 30, 1))
sketch4.addConstraint(Sketcher.Constraint("Tangent", 30, 2, 31, 2))
sketch4.addConstraint(Sketcher.Constraint("Tangent", 31, 1, 32, 1))
sketch4.addConstraint(Sketcher.Constraint("Tangent", 32, 2, 33, 2))
sketch4.addConstraint(Sketcher.Constraint("Tangent", 33, 1, 34, 1))
sketch4.addConstraint(Sketcher.Constraint("Tangent", 34, 2, 35, 2))
sketch4.addConstraint(Sketcher.Constraint("Tangent", 35, 1, 36, 1))
sketch4.addConstraint(Sketcher.Constraint("Coincident", 36, 2, 37, 2))
sketch4.addConstraint(Sketcher.Constraint("Coincident", 37, 1, 38, 1))
sketch4.addConstraint(Sketcher.Constraint("Tangent", 38, 2, 39, 2))
sketch4.addConstraint(Sketcher.Constraint("Tangent", 39, 1, 40, 1))
sketch4.addConstraint(Sketcher.Constraint("Tangent", 40, 2, 41, 2))
sketch4.addConstraint(Sketcher.Constraint("Tangent", 41, 1, 12, 1))
sketch4.addConstraint(Sketcher.Constraint("Horizontal", 0))
sketch4.addConstraint(Sketcher.Constraint("Vertical", 2))
sketch4.addConstraint(Sketcher.Constraint("Horizontal", 4))
sketch4.addConstraint(Sketcher.Constraint("Vertical", 6))
sketch4.addConstraint(Sketcher.Constraint("Vertical", 12))
sketch4.addConstraint(Sketcher.Constraint("Horizontal", 16))
sketch4.addConstraint(Sketcher.Constraint("Horizontal", 18))
sketch4.addConstraint(Sketcher.Constraint("Horizontal", 22))
sketch4.addConstraint(Sketcher.Constraint("Vertical", 26))
sketch4.addConstraint(Sketcher.Constraint("Vertical", 28))
sketch4.addConstraint(Sketcher.Constraint("Horizontal", 32))
sketch4.addConstraint(Sketcher.Constraint("Horizontal", 36))
sketch4.addConstraint(Sketcher.Constraint("Horizontal", 38))
sketch4.addConstraint(Sketcher.Constraint("Coincident", 17, 3, -1, 1))
sketch4.addConstraint(Sketcher.Constraint("Coincident", 37, 3, -1, 1))
sketch4.addConstraint(Sketcher.Constraint("Coincident", 14, 3, 11, 3))
sketch4.addConstraint(Sketcher.Constraint("Coincident", 30, 3, 10, 3))
sketch4.addConstraint(Sketcher.Constraint("Coincident", 34, 3, 9, 3))
sketch4.addConstraint(Sketcher.Constraint("Coincident", 40, 3, 8, 3))
sketch4.addConstraint(Sketcher.Constraint("Coincident", 42, 3, 20, 3))
sketch4.addConstraint(Sketcher.Constraint("Coincident", 43, 3, 24, 3))
sketch4.addConstraint(Sketcher.Constraint("Equal", 1, 3))
sketch4.addConstraint(Sketcher.Constraint("Equal", 3, 5))
sketch4.addConstraint(Sketcher.Constraint("Equal", 5, 7))
sketch4.addConstraint(Sketcher.Constraint("Equal", 8, 9))
sketch4.addConstraint(Sketcher.Constraint("Equal", 9, 10))
sketch4.addConstraint(Sketcher.Constraint("Equal", 10, 11))
sketch4.addConstraint(Sketcher.Constraint("Equal", 13, 15))
sketch4.addConstraint(Sketcher.Constraint("Equal", 15, 19))
sketch4.addConstraint(Sketcher.Constraint("Equal", 14, 20))
sketch4.addConstraint(Sketcher.Constraint("Equal", 19, 21))
sketch4.addConstraint(Sketcher.Constraint("Equal", 21, 23))
sketch4.addConstraint(Sketcher.Constraint("Equal", 20, 24))
sketch4.addConstraint(Sketcher.Constraint("Equal", 23, 25))
sketch4.addConstraint(Sketcher.Constraint("Equal", 25, 29))
sketch4.addConstraint(Sketcher.Constraint("Equal", 24, 30))
sketch4.addConstraint(Sketcher.Constraint("Equal", 29, 31))
sketch4.addConstraint(Sketcher.Constraint("Equal", 31, 33))
sketch4.addConstraint(Sketcher.Constraint("Equal", 30, 34))
sketch4.addConstraint(Sketcher.Constraint("Equal", 33, 35))
sketch4.addConstraint(Sketcher.Constraint("Equal", 17, 37))
sketch4.addConstraint(Sketcher.Constraint("Equal", 35, 39))
sketch4.addConstraint(Sketcher.Constraint("Equal", 34, 40))
sketch4.addConstraint(Sketcher.Constraint("Equal", 39, 41))
sketch4.addConstraint(Sketcher.Constraint("Equal", 11, 42))
sketch4.addConstraint(Sketcher.Constraint("Equal", 42, 43))
sketch4.addConstraint(Sketcher.Constraint("Symmetric", 9, 3, 11, 3, -1, 1))
sketch4.addConstraint(Sketcher.Constraint("Symmetric", 8, 3, 20, 3, -1, 1))
sketch4.addConstraint(Sketcher.Constraint("Symmetric", 8, 3, 9, 3, -2))
sketch4.addConstraint(Sketcher.Constraint("Symmetric", 10, 3, 24, 3, -1))
sketch4.addConstraint(Sketcher.Constraint("Symmetric", 26, 2, 27, 1, -1))
sketch4.addConstraint(Sketcher.Constraint("Horizontal", 9, 3, 10, 3))
sketch4.addConstraint(Sketcher.Constraint("Horizontal", 14, 3, 15, 3))
sketch4.addConstraint(Sketcher.Constraint("Horizontal", 15, 3, 19, 3))
sketch4.addConstraint(Sketcher.Constraint("Horizontal", 20, 3, 21, 3))
sketch4.addConstraint(Sketcher.Constraint("Horizontal", 30, 3, 31, 3))
sketch4.addConstraint(Sketcher.Constraint("Horizontal", 34, 3, 35, 3))
sketch4.addConstraint(Sketcher.Constraint("Horizontal", 35, 3, 39, 3))
sketch4.addConstraint(Sketcher.Constraint("Vertical", 11, 3, 13, 3))
sketch4.addConstraint(Sketcher.Constraint("Vertical", 24, 3, 25, 3))
sketch4.addConstraint(Sketcher.Constraint("Radius", 1, Q("1.5 in")))
sketch4.addConstraint(Sketcher.Constraint("Diameter", 8, Q("0.25 in")))
sketch4.addConstraint(Sketcher.Constraint("Radius", 13, Q("0.25 in")))
sketch4.addConstraint(Sketcher.Constraint("DistanceY", 2, 2, 2, 1, Q("1.8 in")))
sketch4.addConstraint(Sketcher.Constraint("DistanceY", 12, 1, 12, 2, Q("1.5 in")))
sketch4.addConstraint(Sketcher.Constraint("DistanceX", 8, 3, -1, 1, Q("2 in")))
sketch4.addConstraint(Sketcher.Constraint("Radius", 14, Q("0.375 in")))
sketch4.addConstraint(Sketcher.Constraint("DistanceY", -1, 1, 1, 3, Q("0.9 in")))
sketch4.addConstraint(Sketcher.Constraint("DistanceX", -1, 1, 5, 3, Q("4.3 in")))
sketch4.addConstraint(Sketcher.Constraint("DistanceX", -1, 1, 27, 3, Q("3.9 in")))
sketch4.addConstraint(Sketcher.Constraint("DistanceX", -1, 1, 23, 1, Q("4.4 in")))
sketch4.addConstraint(Sketcher.Constraint("DistanceX", 0, 2, 0, 1, Q("5.825 in")))
sketch4.addConstraint(Sketcher.Constraint("Radius", 17, 42.41))
sketch4.addConstraint(Sketcher.Constraint("Radius", 27, 29.71))
pad3 = body3.newObject("PartDesign::Pad", "Pad002")
pad3.Profile = sketch4
pad3.Length = Q("0.5 in")
pad3.Reversed = True

# Sketch on XY plane
sketch5 = body3.newObject("Sketcher::SketchObject", "Sketch004")
sketch5.AttachmentSupport = (doc.getObject("XY_Plane002"), [""])
sketch5.MapMode = "FlatFace"
sketch5.addGeometry(Part.LineSegment(Vector(109.22, 54.61, 0), Vector(-38.735, 54.61, 0)), False)
sketch5.addGeometry(Part.ArcOfCircle(Part.Circle(Vector(-38.735, 22.86, 0), Vector(0, 0, 1), 31.75), math.radians(90), math.radians(180)), False)
sketch5.addGeometry(Part.LineSegment(Vector(-70.485, 22.86, 0), Vector(-70.485, -22.86, 0)), False)
sketch5.addGeometry(Part.ArcOfCircle(Part.Circle(Vector(-38.735, -22.86, 0), Vector(0, 0, 1), 31.75), math.radians(180), math.radians(270)), False)
sketch5.addGeometry(Part.LineSegment(Vector(-38.735, -54.61, 0), Vector(109.22, -54.61, 0)), False)
sketch5.addGeometry(Part.ArcOfCircle(Part.Circle(Vector(109.22, -22.86, 0), Vector(0, 0, 1), 31.75), math.radians(-90), math.radians(0)), False)
sketch5.addGeometry(Part.LineSegment(Vector(140.97, -22.86, 0), Vector(140.97, 22.86, 0)), False)
sketch5.addGeometry(Part.ArcOfCircle(Part.Circle(Vector(109.22, 22.86, 0), Vector(0, 0, 1), 31.75), math.radians(0), math.radians(90)), False)
sketch5.addGeometry(Part.LineSegment(Vector(-63.485, -22.86, 0), Vector(-63.485, 22.86, 0)), False)
sketch5.addGeometry(Part.ArcOfCircle(Part.Circle(Vector(-38.735, 22.86, 0), Vector(0, 0, 1), 24.75), math.radians(90), math.radians(180)), False)
sketch5.addGeometry(Part.LineSegment(Vector(-38.735, 47.61, 0), Vector(109.22, 47.61, 0)), False)
sketch5.addGeometry(Part.ArcOfCircle(Part.Circle(Vector(109.22, 22.86, 0), Vector(0, 0, 1), 24.75), math.radians(0), math.radians(90)), False)
sketch5.addGeometry(Part.LineSegment(Vector(133.97, 22.86, 0), Vector(133.97, -22.86, 0)), False)
sketch5.addGeometry(Part.ArcOfCircle(Part.Circle(Vector(109.22, -22.86, 0), Vector(0, 0, 1), 24.75), math.radians(-90), math.radians(0)), False)
sketch5.addGeometry(Part.LineSegment(Vector(109.22, -47.61, 0), Vector(-38.735, -47.61, 0)), False)
sketch5.addGeometry(Part.ArcOfCircle(Part.Circle(Vector(-38.735, -22.86, 0), Vector(0, 0, 1), 24.75), math.radians(180), math.radians(270)), False)
sketch5.addConstraint(Sketcher.Constraint("Tangent", 0, 2, 1, 1))
sketch5.addConstraint(Sketcher.Constraint("Tangent", 1, 2, 2, 1))
sketch5.addConstraint(Sketcher.Constraint("Tangent", 2, 2, 3, 1))
sketch5.addConstraint(Sketcher.Constraint("Tangent", 3, 2, 4, 1))
sketch5.addConstraint(Sketcher.Constraint("Tangent", 4, 2, 5, 1))
sketch5.addConstraint(Sketcher.Constraint("Tangent", 5, 2, 6, 1))
sketch5.addConstraint(Sketcher.Constraint("Tangent", 6, 2, 7, 1))
sketch5.addConstraint(Sketcher.Constraint("Tangent", 7, 2, 0, 1))
sketch5.addConstraint(Sketcher.Constraint("Tangent", 8, 2, 9, 2))
sketch5.addConstraint(Sketcher.Constraint("Tangent", 9, 1, 10, 1))
sketch5.addConstraint(Sketcher.Constraint("Tangent", 10, 2, 11, 2))
sketch5.addConstraint(Sketcher.Constraint("Tangent", 11, 1, 12, 1))
sketch5.addConstraint(Sketcher.Constraint("Tangent", 12, 2, 13, 2))
sketch5.addConstraint(Sketcher.Constraint("Tangent", 13, 1, 14, 1))
sketch5.addConstraint(Sketcher.Constraint("Tangent", 14, 2, 15, 2))
sketch5.addConstraint(Sketcher.Constraint("Tangent", 15, 1, 8, 1))
sketch5.addConstraint(Sketcher.Constraint("Horizontal", 0))
sketch5.addConstraint(Sketcher.Constraint("Vertical", 2))
sketch5.addConstraint(Sketcher.Constraint("Horizontal", 4))
sketch5.addConstraint(Sketcher.Constraint("Vertical", 6))
sketch5.addConstraint(Sketcher.Constraint("Vertical", 8))
sketch5.addConstraint(Sketcher.Constraint("Horizontal", 10))
sketch5.addConstraint(Sketcher.Constraint("Vertical", 12))
sketch5.addConstraint(Sketcher.Constraint("Horizontal", 14))
sketch5.addConstraint(Sketcher.Constraint("Coincident", 9, 3, 1, 3))
sketch5.addConstraint(Sketcher.Constraint("Coincident", 11, 3, 7, 3))
sketch5.addConstraint(Sketcher.Constraint("Coincident", 13, 3, 5, 3))
sketch5.addConstraint(Sketcher.Constraint("Equal", 1, 3))
sketch5.addConstraint(Sketcher.Constraint("Equal", 3, 5))
sketch5.addConstraint(Sketcher.Constraint("Equal", 5, 7))
sketch5.addConstraint(Sketcher.Constraint("Equal", 13, 15))
sketch5.addConstraint(Sketcher.Constraint("Radius", 1, Q("1.25 in")))
sketch5.addConstraint(Sketcher.Constraint("DistanceY", 2, 2, 2, 1, Q("1.8 in")))
sketch5.addConstraint(Sketcher.Constraint("DistanceY", -1, 1, 1, 3, Q("0.9 in")))
sketch5.addConstraint(Sketcher.Constraint("DistanceX", -1, 1, 5, 3, Q("4.3 in")))
sketch5.addConstraint(Sketcher.Constraint("DistanceX", 0, 2, 0, 1, Q("5.825 in")))
sketch5.addConstraint(Sketcher.Constraint("Radius", 9, 24.75))
pocket2 = body3.newObject("PartDesign::Pocket", "Pocket001")
pocket2.Profile = sketch5
pocket2.Length = Q("0.35 in")

doc.recompute()
